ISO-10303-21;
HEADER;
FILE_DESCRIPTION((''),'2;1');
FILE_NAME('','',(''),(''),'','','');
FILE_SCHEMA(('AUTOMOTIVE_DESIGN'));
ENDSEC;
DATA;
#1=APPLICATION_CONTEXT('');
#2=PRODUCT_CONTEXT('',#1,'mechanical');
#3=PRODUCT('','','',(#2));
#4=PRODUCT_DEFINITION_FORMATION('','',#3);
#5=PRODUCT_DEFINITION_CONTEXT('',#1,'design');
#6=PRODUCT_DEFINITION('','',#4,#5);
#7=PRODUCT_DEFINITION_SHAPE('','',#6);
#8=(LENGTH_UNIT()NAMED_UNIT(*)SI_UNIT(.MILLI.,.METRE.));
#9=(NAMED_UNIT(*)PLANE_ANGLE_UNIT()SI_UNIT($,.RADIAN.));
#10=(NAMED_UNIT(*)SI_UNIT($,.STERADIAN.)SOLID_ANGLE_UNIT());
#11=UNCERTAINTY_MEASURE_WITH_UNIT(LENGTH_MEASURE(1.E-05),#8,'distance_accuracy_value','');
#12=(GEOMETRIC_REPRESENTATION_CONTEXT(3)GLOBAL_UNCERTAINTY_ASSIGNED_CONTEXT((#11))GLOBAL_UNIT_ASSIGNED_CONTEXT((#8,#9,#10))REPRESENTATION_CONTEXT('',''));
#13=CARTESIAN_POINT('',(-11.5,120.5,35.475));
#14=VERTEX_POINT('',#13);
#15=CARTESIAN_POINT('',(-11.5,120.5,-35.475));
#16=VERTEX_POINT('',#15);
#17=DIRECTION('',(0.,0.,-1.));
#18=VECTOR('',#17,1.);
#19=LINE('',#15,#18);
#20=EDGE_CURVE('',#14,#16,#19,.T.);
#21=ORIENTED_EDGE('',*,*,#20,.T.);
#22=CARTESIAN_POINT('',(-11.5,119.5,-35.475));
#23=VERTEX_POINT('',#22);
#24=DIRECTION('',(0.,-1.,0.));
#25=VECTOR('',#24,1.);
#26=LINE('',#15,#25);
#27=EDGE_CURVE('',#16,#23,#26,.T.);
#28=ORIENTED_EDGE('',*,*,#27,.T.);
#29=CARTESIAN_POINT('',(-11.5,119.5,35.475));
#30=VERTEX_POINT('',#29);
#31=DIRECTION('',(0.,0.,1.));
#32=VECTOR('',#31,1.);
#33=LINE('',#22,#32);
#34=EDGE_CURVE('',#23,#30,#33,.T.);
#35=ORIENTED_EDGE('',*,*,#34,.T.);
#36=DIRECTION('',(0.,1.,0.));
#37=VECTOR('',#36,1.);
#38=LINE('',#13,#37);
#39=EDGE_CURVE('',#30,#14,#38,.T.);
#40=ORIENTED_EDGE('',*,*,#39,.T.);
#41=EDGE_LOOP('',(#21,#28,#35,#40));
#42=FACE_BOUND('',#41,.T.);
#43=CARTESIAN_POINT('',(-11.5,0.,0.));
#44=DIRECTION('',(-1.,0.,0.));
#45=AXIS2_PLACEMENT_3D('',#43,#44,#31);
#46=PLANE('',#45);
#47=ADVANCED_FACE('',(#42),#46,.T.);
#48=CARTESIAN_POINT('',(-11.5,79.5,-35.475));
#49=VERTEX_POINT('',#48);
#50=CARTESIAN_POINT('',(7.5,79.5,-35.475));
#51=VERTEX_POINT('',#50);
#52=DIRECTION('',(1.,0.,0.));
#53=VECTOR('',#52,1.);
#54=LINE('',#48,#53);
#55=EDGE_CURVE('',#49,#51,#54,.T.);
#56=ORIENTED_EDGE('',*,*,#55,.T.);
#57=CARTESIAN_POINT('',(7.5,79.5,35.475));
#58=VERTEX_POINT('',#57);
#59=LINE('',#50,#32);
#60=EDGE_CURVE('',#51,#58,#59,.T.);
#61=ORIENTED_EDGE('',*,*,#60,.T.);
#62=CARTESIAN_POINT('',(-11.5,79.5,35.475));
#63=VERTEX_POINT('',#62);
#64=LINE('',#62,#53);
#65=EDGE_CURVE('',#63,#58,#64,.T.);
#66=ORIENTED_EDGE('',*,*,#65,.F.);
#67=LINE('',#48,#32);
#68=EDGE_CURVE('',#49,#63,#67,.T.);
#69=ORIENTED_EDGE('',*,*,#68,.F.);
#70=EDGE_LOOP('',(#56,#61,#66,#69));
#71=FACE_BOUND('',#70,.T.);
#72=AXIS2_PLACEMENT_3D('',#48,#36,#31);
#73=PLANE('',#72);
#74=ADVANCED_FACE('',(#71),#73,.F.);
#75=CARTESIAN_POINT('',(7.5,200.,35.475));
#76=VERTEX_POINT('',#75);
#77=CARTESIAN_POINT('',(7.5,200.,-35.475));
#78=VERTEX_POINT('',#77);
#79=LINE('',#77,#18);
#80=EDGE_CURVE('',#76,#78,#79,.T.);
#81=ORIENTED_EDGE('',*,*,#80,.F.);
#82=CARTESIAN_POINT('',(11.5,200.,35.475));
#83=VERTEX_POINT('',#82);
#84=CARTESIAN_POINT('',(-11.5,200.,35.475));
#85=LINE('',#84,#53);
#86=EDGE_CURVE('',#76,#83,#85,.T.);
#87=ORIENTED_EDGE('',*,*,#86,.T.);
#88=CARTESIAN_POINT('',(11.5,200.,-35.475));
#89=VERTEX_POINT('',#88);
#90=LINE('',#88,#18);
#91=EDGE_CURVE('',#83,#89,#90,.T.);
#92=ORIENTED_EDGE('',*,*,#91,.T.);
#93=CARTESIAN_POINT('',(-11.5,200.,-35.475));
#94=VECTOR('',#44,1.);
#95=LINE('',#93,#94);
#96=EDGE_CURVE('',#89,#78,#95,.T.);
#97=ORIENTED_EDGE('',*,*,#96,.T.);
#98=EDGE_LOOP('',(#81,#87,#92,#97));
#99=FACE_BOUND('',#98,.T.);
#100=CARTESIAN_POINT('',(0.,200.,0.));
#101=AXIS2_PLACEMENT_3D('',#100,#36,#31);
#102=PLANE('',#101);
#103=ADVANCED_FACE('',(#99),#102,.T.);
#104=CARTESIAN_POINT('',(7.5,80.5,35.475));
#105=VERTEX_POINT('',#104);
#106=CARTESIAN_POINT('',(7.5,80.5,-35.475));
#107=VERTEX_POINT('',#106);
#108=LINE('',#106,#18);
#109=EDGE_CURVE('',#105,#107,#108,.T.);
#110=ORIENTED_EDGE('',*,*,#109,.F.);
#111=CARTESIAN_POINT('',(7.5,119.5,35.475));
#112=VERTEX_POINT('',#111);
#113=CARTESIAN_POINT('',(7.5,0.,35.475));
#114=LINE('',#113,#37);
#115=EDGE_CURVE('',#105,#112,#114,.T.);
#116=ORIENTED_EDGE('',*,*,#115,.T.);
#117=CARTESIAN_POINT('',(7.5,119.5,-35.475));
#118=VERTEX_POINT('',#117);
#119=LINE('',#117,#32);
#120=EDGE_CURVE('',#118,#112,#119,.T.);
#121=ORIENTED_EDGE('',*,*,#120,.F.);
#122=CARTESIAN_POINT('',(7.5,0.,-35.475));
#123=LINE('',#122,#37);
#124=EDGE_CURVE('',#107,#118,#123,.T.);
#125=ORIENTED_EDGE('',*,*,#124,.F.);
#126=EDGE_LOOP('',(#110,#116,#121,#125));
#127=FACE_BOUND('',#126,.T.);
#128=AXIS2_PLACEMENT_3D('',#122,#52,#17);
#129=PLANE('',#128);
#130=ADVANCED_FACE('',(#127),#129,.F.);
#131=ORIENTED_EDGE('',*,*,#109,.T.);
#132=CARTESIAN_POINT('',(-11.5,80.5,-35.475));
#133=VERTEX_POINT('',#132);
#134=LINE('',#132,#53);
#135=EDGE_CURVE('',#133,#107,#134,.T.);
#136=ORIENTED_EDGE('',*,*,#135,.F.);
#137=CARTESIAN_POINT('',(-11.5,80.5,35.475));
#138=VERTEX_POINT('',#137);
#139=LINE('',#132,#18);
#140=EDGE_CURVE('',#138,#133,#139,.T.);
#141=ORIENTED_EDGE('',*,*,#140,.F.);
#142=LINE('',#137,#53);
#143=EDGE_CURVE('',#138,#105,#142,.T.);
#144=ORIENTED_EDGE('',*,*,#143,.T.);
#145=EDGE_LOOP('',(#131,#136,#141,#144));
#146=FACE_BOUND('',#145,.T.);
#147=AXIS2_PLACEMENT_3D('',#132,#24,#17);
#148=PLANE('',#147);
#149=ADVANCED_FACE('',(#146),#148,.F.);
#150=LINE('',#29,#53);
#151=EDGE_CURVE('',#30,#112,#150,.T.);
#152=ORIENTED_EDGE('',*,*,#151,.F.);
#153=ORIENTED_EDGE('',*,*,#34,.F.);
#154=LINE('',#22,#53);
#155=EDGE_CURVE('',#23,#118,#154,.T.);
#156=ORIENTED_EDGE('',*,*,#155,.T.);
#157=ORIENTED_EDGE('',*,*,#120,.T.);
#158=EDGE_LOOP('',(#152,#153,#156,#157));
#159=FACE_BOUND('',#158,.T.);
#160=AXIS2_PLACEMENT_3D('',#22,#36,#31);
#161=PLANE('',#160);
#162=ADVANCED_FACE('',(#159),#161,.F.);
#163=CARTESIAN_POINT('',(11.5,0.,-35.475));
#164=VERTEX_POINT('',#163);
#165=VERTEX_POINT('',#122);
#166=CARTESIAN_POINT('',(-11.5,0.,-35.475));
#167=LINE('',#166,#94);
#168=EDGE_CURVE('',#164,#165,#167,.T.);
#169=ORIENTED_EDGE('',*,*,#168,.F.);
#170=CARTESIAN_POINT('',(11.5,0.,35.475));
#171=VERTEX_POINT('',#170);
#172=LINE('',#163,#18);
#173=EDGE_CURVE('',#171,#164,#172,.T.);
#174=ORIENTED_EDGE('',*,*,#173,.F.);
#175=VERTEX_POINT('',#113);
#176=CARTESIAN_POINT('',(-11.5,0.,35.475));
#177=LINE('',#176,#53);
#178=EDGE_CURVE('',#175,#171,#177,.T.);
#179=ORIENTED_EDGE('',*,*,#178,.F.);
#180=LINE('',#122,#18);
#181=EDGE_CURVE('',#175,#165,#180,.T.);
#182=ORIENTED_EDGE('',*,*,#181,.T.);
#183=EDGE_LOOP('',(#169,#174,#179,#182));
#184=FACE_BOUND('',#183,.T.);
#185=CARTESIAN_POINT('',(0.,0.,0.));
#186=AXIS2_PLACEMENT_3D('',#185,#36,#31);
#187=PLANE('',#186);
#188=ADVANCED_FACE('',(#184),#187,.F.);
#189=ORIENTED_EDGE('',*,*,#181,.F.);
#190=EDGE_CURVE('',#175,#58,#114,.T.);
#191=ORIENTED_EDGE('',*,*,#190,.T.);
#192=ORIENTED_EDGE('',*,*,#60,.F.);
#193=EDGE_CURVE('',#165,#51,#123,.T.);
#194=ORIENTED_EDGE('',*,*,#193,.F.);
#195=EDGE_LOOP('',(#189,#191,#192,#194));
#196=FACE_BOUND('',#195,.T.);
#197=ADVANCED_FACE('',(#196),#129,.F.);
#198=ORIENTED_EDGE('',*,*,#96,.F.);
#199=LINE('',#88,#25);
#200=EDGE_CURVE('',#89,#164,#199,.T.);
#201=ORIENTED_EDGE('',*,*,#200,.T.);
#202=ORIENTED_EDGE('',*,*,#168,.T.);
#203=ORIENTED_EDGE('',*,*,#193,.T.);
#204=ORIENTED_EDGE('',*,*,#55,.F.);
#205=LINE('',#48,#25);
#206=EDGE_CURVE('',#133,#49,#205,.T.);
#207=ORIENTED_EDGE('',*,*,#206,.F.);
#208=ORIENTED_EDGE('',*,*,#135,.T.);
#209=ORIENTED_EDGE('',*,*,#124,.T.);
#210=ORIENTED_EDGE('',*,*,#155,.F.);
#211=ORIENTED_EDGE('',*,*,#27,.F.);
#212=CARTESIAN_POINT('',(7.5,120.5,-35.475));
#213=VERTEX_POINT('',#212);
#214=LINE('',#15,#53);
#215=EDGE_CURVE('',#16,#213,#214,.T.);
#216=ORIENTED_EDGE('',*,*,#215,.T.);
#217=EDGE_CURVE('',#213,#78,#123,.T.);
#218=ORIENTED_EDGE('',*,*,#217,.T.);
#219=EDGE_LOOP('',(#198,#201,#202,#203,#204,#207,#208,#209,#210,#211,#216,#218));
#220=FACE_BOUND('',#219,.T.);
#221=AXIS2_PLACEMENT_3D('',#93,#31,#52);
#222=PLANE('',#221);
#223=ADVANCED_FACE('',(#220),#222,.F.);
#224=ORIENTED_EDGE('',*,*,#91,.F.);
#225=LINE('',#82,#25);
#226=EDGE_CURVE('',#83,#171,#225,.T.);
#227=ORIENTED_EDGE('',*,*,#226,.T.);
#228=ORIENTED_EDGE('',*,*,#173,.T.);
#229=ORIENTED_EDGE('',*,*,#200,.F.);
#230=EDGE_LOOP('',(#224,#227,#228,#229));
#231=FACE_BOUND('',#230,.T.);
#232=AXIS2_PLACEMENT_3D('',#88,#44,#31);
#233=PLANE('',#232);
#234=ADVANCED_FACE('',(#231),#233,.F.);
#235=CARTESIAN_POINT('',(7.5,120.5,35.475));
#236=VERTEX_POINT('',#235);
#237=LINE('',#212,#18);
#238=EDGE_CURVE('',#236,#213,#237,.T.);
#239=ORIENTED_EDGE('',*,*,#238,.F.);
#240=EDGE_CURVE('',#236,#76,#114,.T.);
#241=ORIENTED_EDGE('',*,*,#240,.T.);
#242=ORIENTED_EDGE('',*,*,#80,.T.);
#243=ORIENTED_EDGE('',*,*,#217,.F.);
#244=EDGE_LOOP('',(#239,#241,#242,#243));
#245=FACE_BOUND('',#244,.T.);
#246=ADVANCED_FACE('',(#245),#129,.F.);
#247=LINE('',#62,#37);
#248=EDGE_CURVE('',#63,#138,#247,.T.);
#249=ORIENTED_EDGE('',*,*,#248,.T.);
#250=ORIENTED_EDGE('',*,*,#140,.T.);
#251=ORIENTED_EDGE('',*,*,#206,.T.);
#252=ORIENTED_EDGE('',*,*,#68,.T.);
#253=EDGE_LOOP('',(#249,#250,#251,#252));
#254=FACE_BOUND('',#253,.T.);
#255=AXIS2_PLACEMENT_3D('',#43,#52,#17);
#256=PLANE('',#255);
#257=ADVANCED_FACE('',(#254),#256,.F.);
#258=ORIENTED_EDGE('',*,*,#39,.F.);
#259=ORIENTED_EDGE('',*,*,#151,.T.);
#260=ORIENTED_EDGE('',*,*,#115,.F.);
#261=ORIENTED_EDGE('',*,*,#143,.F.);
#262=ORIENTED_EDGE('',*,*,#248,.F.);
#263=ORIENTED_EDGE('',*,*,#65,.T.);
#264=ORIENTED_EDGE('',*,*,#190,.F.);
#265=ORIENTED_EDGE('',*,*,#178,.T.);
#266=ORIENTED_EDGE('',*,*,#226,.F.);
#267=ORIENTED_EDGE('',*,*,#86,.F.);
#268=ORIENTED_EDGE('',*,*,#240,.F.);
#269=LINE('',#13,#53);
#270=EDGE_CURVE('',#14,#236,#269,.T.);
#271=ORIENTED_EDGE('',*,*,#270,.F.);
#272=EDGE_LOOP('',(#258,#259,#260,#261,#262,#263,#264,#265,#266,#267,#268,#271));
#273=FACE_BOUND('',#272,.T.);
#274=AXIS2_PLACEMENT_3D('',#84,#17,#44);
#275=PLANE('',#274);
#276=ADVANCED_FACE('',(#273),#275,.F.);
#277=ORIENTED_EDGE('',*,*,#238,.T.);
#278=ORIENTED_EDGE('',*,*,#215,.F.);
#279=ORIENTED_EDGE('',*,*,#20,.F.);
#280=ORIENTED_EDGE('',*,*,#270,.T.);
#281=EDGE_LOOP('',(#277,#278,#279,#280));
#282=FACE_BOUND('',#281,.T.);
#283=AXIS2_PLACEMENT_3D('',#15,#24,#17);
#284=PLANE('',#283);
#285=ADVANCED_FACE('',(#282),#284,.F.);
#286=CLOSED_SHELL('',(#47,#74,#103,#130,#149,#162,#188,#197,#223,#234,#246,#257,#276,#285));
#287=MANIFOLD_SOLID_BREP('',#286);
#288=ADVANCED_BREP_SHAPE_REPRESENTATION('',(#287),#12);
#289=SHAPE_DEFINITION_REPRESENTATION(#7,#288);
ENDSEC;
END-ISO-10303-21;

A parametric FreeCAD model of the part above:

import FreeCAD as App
import Part
import Sketcher
from FreeCAD import Vector


def add_polygon(sketch, points):
    """Adds a closed chain of lines whose ends are joined by coincident constraints."""
    first, n = sketch.GeometryCount, len(points)
    for a, b in zip(points, points[1:] + points[:1]):
        sketch.addGeometry(Part.LineSegment(App.Vector(*a, 0), App.Vector(*b, 0)), False)
    for i in range(n):
        sketch.addConstraint(Sketcher.Constraint("Coincident", first + i, 2, first + (i + 1) % n, 1))

doc = App.newDocument("Part")
body = doc.addObject("PartDesign::Body", "Body")

sketch1 = body.newObject("Sketcher::SketchObject", "Sketch")
sketch1.AttachmentSupport = (doc.getObject("XZ_Plane"), [""])
sketch1.MapMode = "FlatFace"
add_polygon(sketch1, [(-12, -35), (-12, 35), (12, 35), (12, -35)])
sketch1.addConstraint([
    Sketcher.Constraint("Vertical", 0),
    Sketcher.Constraint("Horizontal", 1),
    Sketcher.Constraint("Vertical", 2),
    Sketcher.Constraint("Horizontal", 3),
    Sketcher.Constraint("Symmetric", 0, 2, 2, 2, -1, 1),
    Sketcher.Constraint("DistanceX", 1, 1, 1, 2, 23.0),
    Sketcher.Constraint("DistanceY", 0, 1, 0, 2, 70.95),
])
pad1 = body.newObject("PartDesign::Pad", "Pad")
pad1.Profile = sketch1
pad1.Length = 200
pad1.Reversed = True

sketch2 = body.newObject("Sketcher::SketchObject", "Sketch001")
sketch2.AttachmentSupport = (doc.getObject("XZ_Plane"), [""])
sketch2.MapMode = "FlatFace"
sketch2.AttachmentOffset = App.Placement(Vector(0, 0, -200), App.Rotation())
add_polygon(sketch2, [(-12, -35), (-12, 35), (8, 35), (8, -35)])
sketch2.addConstraint([
    Sketcher.Constraint("Vertical", 0),
    Sketcher.Constraint("Horizontal", 1),
    Sketcher.Constraint("Vertical", 2),
    Sketcher.Constraint("Horizontal", 3),
    Sketcher.Constraint("DistanceX", 1, 1, 1, 2, 19.0),
    Sketcher.Constraint("DistanceY", 0, 1, 0, 2, 70.95),
    Sketcher.Constraint("DistanceX", 0, 2, -1, 1, 11.5),
    Sketcher.Constraint("DistanceY", -1, 1, 0, 2, 35.475),
])
pocket1 = body.newObject("PartDesign::Pocket", "Pocket")
pocket1.Profile = sketch2
pocket1.Type = "ThroughAll"
pocket1.Reversed = True

sketch3 = body.newObject("Sketcher::SketchObject", "Sketch002")
sketch3.AttachmentSupport = (doc.getObject("YZ_Plane"), [""])
sketch3.MapMode = "FlatFace"
sketch3.AttachmentOffset = App.Placement(Vector(0, 0, 7.5), App.Rotation())
add_polygon(sketch3, [(80.5, -35.5), (79.5, -35.5), (79.5, 35.5), (80.5, 35.5)])
add_polygon(sketch3, [(120.5, -35.5), (119.5, -35.5), (119.5, 35.5), (120.5, 35.5)])
sketch3.addConstraint([
    Sketcher.Constraint("Horizontal", 0),
    Sketcher.Constraint("Vertical", 1),
    Sketcher.Constraint("Horizontal", 2),
    Sketcher.Constraint("Vertical", 3),
    Sketcher.Constraint("Horizontal", 4),
    Sketcher.Constraint("Vertical", 5),
    Sketcher.Constraint("Horizontal", 6),
    Sketcher.Constraint("Vertical", 7),
    Sketcher.Constraint("Horizontal", 3, 2, 4, 2),
    Sketcher.Constraint("Horizontal", 2, 2, 5, 2),
    Sketcher.Constraint("Equal", 2, 4),
    Sketcher.Constraint("DistanceX", 0, 2, 0, 1, 1.0),
    Sketcher.Constraint("DistanceX", 3, 2, 4, 2, 39.0),
    Sketcher.Constraint("DistanceY", 1, 1, 1, 2, 70.95),
    Sketcher.Constraint("DistanceX", -1, 1, 0, 2, 79.5),
    Sketcher.Constraint("DistanceY", 0, 2, -1, 1, 35.475),
])
pad2 = body.newObject("PartDesign::Pad", "Pad001")
pad2.Profile = sketch3
pad2.Length = 19
pad2.Reversed = True

doc.recompute()
